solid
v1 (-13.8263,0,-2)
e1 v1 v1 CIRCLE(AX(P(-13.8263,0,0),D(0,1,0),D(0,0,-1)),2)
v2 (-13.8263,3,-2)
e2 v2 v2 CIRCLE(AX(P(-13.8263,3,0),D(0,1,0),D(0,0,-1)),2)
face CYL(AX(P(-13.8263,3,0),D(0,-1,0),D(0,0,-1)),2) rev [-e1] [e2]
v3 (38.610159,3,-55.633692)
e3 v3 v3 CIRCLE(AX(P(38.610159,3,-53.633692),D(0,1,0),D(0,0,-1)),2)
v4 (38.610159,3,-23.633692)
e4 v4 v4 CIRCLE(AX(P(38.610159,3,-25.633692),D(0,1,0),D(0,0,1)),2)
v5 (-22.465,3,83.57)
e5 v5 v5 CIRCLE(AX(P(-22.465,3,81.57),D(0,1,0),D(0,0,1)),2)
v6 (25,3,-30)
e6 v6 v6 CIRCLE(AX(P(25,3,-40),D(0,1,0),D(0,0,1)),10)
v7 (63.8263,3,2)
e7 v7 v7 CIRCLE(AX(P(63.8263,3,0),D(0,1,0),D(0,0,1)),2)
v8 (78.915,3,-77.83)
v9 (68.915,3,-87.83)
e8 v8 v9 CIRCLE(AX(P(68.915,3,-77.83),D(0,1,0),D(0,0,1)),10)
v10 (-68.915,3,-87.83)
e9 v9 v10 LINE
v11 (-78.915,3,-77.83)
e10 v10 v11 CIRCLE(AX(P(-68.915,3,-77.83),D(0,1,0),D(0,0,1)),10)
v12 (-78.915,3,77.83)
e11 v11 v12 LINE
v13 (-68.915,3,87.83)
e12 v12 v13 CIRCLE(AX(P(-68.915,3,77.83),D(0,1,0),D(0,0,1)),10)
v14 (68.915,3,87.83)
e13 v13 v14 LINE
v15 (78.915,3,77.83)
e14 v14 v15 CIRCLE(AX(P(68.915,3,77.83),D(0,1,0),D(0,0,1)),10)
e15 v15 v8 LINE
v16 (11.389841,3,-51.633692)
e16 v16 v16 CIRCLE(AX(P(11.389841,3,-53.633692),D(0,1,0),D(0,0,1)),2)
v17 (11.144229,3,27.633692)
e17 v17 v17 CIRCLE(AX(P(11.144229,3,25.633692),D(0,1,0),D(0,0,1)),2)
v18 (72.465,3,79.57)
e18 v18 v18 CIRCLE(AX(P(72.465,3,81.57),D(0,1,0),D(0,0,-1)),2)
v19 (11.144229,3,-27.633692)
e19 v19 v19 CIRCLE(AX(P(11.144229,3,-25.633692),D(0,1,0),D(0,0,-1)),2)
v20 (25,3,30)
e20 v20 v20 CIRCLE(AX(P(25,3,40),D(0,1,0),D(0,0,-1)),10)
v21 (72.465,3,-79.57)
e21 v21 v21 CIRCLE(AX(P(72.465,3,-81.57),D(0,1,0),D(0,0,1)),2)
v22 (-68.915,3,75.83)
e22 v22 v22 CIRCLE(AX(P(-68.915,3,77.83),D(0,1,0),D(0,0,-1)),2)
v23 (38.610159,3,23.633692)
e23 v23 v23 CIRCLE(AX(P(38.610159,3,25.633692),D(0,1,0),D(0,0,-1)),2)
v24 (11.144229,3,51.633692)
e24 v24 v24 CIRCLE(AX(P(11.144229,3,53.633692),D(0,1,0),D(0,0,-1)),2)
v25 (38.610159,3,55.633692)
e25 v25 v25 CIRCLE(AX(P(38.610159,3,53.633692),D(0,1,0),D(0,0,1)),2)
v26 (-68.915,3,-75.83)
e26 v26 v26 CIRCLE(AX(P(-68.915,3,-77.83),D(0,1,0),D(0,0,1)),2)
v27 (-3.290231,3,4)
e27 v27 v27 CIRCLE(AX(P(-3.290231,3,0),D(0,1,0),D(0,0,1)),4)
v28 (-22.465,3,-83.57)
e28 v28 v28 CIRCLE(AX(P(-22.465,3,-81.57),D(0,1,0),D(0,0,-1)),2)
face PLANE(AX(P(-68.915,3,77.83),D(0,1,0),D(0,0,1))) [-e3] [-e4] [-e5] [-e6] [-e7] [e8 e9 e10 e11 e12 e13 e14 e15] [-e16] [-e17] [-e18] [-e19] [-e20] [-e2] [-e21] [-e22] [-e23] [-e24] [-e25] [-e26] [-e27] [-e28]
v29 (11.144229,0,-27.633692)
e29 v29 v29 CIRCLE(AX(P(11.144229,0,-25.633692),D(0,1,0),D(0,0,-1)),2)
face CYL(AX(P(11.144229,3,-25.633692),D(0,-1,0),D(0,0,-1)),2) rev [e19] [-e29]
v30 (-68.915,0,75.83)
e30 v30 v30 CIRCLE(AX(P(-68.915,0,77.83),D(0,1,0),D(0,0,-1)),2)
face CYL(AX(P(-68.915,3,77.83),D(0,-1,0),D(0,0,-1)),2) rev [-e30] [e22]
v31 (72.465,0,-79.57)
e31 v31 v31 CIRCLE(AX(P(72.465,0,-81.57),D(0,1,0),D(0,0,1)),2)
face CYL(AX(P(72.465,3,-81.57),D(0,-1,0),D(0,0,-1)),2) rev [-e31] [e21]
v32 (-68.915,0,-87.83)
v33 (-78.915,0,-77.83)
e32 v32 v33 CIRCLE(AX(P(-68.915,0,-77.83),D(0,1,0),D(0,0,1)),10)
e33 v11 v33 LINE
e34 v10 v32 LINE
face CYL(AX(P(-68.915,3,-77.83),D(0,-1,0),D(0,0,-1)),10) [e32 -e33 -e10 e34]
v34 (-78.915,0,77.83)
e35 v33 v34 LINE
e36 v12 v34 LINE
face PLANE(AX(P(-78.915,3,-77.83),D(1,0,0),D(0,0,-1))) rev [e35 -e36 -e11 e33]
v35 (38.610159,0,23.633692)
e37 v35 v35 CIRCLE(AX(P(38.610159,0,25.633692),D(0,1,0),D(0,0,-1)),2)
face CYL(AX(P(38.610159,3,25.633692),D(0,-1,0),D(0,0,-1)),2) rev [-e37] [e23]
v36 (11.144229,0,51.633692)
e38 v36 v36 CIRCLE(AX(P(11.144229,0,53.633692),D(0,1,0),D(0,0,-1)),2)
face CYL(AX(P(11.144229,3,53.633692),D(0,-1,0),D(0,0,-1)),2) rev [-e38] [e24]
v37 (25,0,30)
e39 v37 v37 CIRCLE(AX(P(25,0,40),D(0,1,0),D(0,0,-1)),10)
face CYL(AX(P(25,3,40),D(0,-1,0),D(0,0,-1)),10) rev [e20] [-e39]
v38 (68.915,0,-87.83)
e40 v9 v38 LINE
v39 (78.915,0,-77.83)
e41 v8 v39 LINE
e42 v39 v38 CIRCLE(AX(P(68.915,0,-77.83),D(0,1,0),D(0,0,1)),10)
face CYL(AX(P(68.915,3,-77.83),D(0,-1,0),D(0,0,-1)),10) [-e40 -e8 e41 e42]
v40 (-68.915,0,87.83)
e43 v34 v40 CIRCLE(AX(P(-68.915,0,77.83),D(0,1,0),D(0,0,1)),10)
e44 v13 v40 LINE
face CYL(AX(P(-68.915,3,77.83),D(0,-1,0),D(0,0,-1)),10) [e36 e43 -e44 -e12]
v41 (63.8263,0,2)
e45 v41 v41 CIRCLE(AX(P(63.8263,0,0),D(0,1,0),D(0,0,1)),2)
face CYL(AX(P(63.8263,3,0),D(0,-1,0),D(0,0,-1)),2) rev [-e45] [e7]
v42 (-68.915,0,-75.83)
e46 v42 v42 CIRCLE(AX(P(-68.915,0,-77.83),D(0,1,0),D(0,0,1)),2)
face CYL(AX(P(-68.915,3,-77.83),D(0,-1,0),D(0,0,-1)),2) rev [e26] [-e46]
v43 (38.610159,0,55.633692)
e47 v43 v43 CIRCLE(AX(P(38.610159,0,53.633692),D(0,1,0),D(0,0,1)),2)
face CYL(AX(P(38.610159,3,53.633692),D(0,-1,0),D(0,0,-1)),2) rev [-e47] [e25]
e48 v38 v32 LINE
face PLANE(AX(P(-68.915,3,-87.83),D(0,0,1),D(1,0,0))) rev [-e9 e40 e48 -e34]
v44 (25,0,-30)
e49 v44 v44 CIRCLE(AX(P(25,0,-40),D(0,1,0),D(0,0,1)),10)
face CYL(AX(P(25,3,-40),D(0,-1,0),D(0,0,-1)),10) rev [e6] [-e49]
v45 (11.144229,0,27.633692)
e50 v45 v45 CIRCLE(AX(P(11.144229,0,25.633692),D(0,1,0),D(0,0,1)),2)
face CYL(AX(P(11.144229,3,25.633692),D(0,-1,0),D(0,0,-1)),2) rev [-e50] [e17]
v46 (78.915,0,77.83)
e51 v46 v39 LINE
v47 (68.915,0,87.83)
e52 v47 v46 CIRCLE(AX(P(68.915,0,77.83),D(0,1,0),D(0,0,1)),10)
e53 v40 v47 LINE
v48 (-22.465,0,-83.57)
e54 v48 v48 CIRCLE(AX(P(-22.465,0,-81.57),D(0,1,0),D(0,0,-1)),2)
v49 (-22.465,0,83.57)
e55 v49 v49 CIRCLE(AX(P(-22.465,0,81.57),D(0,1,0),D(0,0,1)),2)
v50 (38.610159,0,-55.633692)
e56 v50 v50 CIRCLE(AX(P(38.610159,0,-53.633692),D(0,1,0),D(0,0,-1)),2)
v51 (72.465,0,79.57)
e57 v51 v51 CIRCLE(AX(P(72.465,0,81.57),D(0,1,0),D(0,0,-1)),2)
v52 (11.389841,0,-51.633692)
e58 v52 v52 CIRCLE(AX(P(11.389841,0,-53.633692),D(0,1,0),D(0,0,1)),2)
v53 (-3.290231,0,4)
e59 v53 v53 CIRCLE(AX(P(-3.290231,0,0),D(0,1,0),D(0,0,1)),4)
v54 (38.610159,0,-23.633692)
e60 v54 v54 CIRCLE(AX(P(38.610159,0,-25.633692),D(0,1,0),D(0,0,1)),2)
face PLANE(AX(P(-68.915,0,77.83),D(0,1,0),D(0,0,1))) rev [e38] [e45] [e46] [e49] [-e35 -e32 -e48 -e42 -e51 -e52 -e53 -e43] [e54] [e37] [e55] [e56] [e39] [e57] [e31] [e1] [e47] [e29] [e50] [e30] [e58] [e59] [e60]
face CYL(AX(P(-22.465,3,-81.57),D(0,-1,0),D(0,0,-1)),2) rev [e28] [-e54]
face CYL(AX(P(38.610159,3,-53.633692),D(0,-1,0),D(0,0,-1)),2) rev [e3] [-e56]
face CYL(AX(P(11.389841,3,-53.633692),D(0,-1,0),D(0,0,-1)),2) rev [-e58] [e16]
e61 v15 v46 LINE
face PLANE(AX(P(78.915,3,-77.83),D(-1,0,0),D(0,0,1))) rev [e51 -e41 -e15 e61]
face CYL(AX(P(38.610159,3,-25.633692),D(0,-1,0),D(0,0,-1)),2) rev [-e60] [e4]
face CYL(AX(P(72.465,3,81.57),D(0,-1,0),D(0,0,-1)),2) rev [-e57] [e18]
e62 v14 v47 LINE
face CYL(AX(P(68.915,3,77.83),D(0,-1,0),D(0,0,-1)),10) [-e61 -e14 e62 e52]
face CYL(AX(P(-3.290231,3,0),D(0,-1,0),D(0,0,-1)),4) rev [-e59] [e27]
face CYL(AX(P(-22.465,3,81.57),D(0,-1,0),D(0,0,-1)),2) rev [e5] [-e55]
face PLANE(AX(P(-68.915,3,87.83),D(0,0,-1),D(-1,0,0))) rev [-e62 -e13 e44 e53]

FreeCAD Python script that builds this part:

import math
import FreeCAD as App
import Part
import Sketcher
Q = App.Units.Quantity

doc = App.newDocument("Part")
body = doc.addObject("PartDesign::Body", "Body")

# Sketch on XZ plane
sketch1 = body.newObject("Sketcher::SketchObject", "Sketch")
sketch1.AttachmentSupport = (doc.getObject("XZ_Plane"), [""])
sketch1.MapMode = "FlatFace"
sketch1.addGeometry([
    Part.LineSegment(App.Vector(-78.9, -77.8, 0), App.Vector(-78.9, 77.8, 0)),  # 0
    Part.ArcOfCircle(Part.Circle(App.Vector(-68.9, 77.8, 0), App.Vector(0, 0, 1), 10), math.radians(90), math.radians(180)),  # 1
    Part.LineSegment(App.Vector(-68.9, 87.8, 0), App.Vector(68.9, 87.8, 0)),  # 2
    Part.ArcOfCircle(Part.Circle(App.Vector(68.9, 77.8, 0), App.Vector(0, 0, 1), 10), math.radians(0), math.radians(90)),  # 3
    Part.LineSegment(App.Vector(78.9, 77.8, 0), App.Vector(78.9, -77.8, 0)),  # 4
    Part.ArcOfCircle(Part.Circle(App.Vector(68.9, -77.8, 0), App.Vector(0, 0, 1), 10), math.radians(-90), math.radians(0)),  # 5
    Part.LineSegment(App.Vector(68.9, -87.8, 0), App.Vector(-68.9, -87.8, 0)),  # 6
    Part.ArcOfCircle(Part.Circle(App.Vector(-68.9, -77.8, 0), App.Vector(0, 0, 1), 10), math.radians(180), math.radians(270)),  # 7
    Part.Circle(App.Vector(-68.9, 77.8, 0), App.Vector(0, 0, 1), 2),  # 8
    Part.Circle(App.Vector(-22.5, 81.6, 0), App.Vector(0, 0, 1), 2),  # 9
    Part.Circle(App.Vector(11.1, 53.6, 0), App.Vector(0, 0, 1), 2),  # 10
    Part.Circle(App.Vector(72.5, 81.6, 0), App.Vector(0, 0, 1), 2),  # 11
    Part.Circle(App.Vector(38.6, 53.6, 0), App.Vector(0, 0, 1), 2),  # 12
    Part.Circle(App.Vector(11.1, 25.6, 0), App.Vector(0, 0, 1), 2),  # 13
    Part.Circle(App.Vector(25, 40, 0), App.Vector(0, 0, 1), 10),  # 14
    Part.Circle(App.Vector(38.6, 25.6, 0), App.Vector(0, 0, 1), 2),  # 15
    Part.Circle(App.Vector(-13.8, 0, 0), App.Vector(0, 0, 1), 2),  # 16
    Part.Circle(App.Vector(-3.3, 0, 0), App.Vector(0, 0, 1), 4),  # 17
    Part.Circle(App.Vector(-68.9, -77.8, 0), App.Vector(0, 0, 1), 2),  # 18
    Part.Circle(App.Vector(-22.5, -81.6, 0), App.Vector(0, 0, 1), 2),  # 19
    Part.Circle(App.Vector(11.1, -25.6, 0), App.Vector(0, 0, 1), 2),  # 20
    Part.Circle(App.Vector(25, -40, 0), App.Vector(0, 0, 1), 10),  # 21
    Part.Circle(App.Vector(63.8, 0, 0), App.Vector(0, 0, 1), 2),  # 22
    Part.Circle(App.Vector(38.6, -25.6, 0), App.Vector(0, 0, 1), 2),  # 23
    Part.Circle(App.Vector(11.4, -53.6, 0), App.Vector(0, 0, 1), 2),  # 24
    Part.Circle(App.Vector(38.6, -53.6, 0), App.Vector(0, 0, 1), 2),  # 25
    Part.Circle(App.Vector(72.5, -81.6, 0), App.Vector(0, 0, 1), 2),  # 26
], False)
sketch1.addConstraint([
    Sketcher.Constraint("Tangent", 0, 2, 1, 2),
    Sketcher.Constraint("Tangent", 1, 1, 2, 1),
    Sketcher.Constraint("Tangent", 2, 2, 3, 2),
    Sketcher.Constraint("Tangent", 3, 1, 4, 1),
    Sketcher.Constraint("Tangent", 4, 2, 5, 2),
    Sketcher.Constraint("Tangent", 5, 1, 6, 1),
    Sketcher.Constraint("Tangent", 6, 2, 7, 2),
    Sketcher.Constraint("Tangent", 7, 1, 0, 1),
    Sketcher.Constraint("Vertical", 0),
    Sketcher.Constraint("Horizontal", 2),
    Sketcher.Constraint("Vertical", 4),
    Sketcher.Constraint("Horizontal", 6),
    Sketcher.Constraint("Coincident", 8, 3, 1, 3),
    Sketcher.Constraint("Coincident", 18, 3, 7, 3),
    Sketcher.Constraint("Equal", 1, 3),
    Sketcher.Constraint("Equal", 3, 5),
    Sketcher.Constraint("Equal", 5, 7),
    Sketcher.Constraint("Equal", 8, 9),
    Sketcher.Constraint("Equal", 9, 10),
    Sketcher.Constraint("Equal", 10, 11),
    Sketcher.Constraint("Equal", 11, 12),
    Sketcher.Constraint("Equal", 12, 13),
    Sketcher.Constraint("Equal", 7, 14),
    Sketcher.Constraint("Equal", 13, 15),
    Sketcher.Constraint("Equal", 15, 16),
    Sketcher.Constraint("Equal", 16, 18),
    Sketcher.Constraint("Equal", 18, 19),
    Sketcher.Constraint("Equal", 19, 20),
    Sketcher.Constraint("Equal", 14, 21),
    Sketcher.Constraint("Equal", 20, 22),
    Sketcher.Constraint("Equal", 22, 23),
    Sketcher.Constraint("Equal", 23, 24),
    Sketcher.Constraint("Equal", 24, 25),
    Sketcher.Constraint("Equal", 25, 26),
    Sketcher.Constraint("Symmetric", 1, 3, 5, 3, -1, 1),
    Sketcher.Constraint("Symmetric", 9, 3, 19, 3, -1),
    Sketcher.Constraint("Symmetric", 13, 3, 20, 3, -1),
    Sketcher.Constraint("Symmetric", 14, 3, 21, 3, -1),
    Sketcher.Constraint("Symmetric", 15, 3, 23, 3, -1),
    Sketcher.Constraint("Symmetric", 12, 3, 25, 3, -1),
    Sketcher.Constraint("Symmetric", 11, 3, 26, 3, -1),
    Sketcher.Constraint("PointOnObject", 16, 3, -1),
    Sketcher.Constraint("PointOnObject", 17, 3, -1),
    Sketcher.Constraint("PointOnObject", 22, 3, -1),
    Sketcher.Constraint("Horizontal", 9, 3, 11, 3),
    Sketcher.Constraint("Horizontal", 10, 3, 12, 3),
    Sketcher.Constraint("Horizontal", 13, 3, 15, 3),
    Sketcher.Constraint("Horizontal", 24, 3, 25, 3),
    Sketcher.Constraint("Vertical", 10, 3, 13, 3),
    Sketcher.Constraint("Vertical", 12, 3, 15, 3),
    Sketcher.Constraint("Diameter", 8, Q("4 mm")),
    Sketcher.Constraint("Diameter", 14, Q("20 mm")),
    Sketcher.Constraint("Diameter", 17, Q("8 mm")),
    Sketcher.Constraint("DistanceX", -1, 1, 14, 3, Q("25 mm")),
    Sketcher.Constraint("DistanceY", -1, 1, 14, 3, Q("40 mm")),
    Sketcher.Constraint("DistanceY", 13, 3, 10, 3, Q("28 mm")),
    Sketcher.Constraint("DistanceX", 2, 1, 2, 2, Q("137.83 mm")),
    Sketcher.Constraint("DistanceY", 0, 1, 0, 2, Q("155.66 mm")),
    Sketcher.Constraint("DistanceY", 7, 3, 9, 3, Q("159.4 mm")),
    Sketcher.Constraint("DistanceX", 1, 3, 9, 3, Q("46.45 mm")),
    Sketcher.Constraint("DistanceX", 3, 3, 11, 3, Q("3.55 mm")),
    Sketcher.Constraint("DistanceX", 16, 3, -1, 1, Q("13.8263 mm")),
    Sketcher.Constraint("DistanceX", -1, 1, 22, 3, Q("63.8263 mm")),
    Sketcher.Constraint("DistanceX", -1, 1, 10, 3, Q("11.144229 mm")),
    Sketcher.Constraint("DistanceX", -1, 1, 12, 3, Q("38.610159 mm")),
    Sketcher.Constraint("DistanceX", 17, 3, -1, 1, Q("3.290231 mm")),
    Sketcher.Constraint("DistanceX", -1, 1, 24, 3, Q("11.389841 mm")),
    Sketcher.Constraint("DistanceY", -1, 1, 10, 3, Q("53.633692 mm")),
])
pad1 = body.newObject("PartDesign::Pad", "Pad")
pad1.Profile = sketch1
pad1.Length = 3
pad1.Reversed = True

doc.recompute()
